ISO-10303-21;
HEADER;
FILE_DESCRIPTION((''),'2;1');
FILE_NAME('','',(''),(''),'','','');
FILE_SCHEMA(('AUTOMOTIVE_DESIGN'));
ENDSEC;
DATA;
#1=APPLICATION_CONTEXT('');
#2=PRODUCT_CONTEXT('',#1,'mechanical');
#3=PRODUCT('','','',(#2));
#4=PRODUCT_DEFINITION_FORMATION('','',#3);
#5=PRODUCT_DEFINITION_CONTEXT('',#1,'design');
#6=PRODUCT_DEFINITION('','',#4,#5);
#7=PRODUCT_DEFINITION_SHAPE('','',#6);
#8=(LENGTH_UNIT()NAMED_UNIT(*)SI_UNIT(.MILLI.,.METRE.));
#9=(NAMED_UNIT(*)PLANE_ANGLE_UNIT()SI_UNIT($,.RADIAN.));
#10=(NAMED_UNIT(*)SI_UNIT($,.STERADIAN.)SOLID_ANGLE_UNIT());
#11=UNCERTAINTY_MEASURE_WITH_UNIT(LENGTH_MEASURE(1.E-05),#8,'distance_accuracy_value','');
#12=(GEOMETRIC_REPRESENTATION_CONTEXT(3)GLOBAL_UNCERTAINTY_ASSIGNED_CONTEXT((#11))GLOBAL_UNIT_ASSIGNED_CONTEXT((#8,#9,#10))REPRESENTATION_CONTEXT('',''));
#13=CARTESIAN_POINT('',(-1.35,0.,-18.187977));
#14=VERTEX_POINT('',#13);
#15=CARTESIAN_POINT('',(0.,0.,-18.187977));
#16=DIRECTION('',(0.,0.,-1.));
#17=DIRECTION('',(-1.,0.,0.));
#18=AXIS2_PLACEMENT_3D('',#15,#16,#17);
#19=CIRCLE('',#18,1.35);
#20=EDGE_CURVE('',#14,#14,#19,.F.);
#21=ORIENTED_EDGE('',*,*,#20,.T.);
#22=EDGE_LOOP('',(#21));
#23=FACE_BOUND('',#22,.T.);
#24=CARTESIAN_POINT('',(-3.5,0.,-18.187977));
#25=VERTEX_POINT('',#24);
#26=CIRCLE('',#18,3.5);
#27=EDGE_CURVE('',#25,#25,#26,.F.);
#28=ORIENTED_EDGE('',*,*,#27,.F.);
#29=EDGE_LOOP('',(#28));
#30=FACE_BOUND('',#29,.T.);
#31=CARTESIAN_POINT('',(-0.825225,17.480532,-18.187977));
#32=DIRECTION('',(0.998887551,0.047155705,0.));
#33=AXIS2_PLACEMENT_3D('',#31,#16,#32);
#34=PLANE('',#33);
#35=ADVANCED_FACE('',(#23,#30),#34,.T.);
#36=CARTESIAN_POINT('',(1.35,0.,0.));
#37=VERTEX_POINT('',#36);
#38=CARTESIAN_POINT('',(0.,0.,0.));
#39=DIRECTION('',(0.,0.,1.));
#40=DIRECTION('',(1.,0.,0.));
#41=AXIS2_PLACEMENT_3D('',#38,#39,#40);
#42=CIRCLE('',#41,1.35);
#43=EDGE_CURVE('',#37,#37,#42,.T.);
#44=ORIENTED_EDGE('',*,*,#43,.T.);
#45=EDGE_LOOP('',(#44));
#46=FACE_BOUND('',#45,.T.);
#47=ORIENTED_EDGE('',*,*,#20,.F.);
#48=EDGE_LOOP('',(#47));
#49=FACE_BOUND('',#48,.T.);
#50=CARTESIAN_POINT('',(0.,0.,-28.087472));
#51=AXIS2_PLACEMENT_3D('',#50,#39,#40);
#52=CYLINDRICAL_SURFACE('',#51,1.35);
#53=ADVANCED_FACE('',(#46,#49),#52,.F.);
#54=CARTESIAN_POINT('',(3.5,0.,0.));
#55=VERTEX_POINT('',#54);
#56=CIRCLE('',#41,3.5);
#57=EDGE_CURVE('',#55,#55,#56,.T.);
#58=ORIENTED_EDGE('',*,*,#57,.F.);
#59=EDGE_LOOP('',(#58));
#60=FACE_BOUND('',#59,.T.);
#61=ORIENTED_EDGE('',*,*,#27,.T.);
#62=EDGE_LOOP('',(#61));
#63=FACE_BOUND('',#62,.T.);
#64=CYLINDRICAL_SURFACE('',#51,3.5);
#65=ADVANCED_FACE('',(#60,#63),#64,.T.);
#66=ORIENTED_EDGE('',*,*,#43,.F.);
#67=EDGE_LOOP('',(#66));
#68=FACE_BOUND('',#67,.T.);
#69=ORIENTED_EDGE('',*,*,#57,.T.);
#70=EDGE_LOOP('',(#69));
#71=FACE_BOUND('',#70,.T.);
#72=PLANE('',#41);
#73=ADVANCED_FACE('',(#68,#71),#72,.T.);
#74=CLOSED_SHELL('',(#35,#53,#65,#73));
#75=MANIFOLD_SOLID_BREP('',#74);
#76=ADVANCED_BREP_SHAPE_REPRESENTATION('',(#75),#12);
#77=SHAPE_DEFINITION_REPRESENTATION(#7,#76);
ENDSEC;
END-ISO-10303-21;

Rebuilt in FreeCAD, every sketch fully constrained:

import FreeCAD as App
import Part
import Sketcher
from FreeCAD import Vector

doc = App.newDocument("Part")
body = doc.addObject("PartDesign::Body", "Body")

# Sketch on XY plane
sketch1 = doc.addObject("Sketcher::SketchObject", "Sketch")
body.addObject(sketch1)
sketch1.AttachmentSupport = (doc.XY_Plane, [""])
sketch1.MapMode = "FlatFace"
sketch1.addGeometry(Part.Circle(Vector(0, 0, 0), Vector(0, 0, 1), 3.5), False)
sketch1.addGeometry(Part.Circle(Vector(0, 0, 0), Vector(0, 0, 1), 1.4), False)
sketch1.addConstraint(Sketcher.Constraint("Coincident", 0, 3, -1, 1))
sketch1.addConstraint(Sketcher.Constraint("Coincident", 1, 3, -1, 1))
sketch1.addConstraint(Sketcher.Constraint("Diameter", 0, 7.0))
sketch1.addConstraint(Sketcher.Constraint("Diameter", 1, 2.7))
pad1 = doc.addObject("PartDesign::Pad", "Pad")
body.addObject(pad1)
pad1.Profile = sketch1
pad1.Length = 18.187977
pad1.Reversed = True

doc.recompute()
